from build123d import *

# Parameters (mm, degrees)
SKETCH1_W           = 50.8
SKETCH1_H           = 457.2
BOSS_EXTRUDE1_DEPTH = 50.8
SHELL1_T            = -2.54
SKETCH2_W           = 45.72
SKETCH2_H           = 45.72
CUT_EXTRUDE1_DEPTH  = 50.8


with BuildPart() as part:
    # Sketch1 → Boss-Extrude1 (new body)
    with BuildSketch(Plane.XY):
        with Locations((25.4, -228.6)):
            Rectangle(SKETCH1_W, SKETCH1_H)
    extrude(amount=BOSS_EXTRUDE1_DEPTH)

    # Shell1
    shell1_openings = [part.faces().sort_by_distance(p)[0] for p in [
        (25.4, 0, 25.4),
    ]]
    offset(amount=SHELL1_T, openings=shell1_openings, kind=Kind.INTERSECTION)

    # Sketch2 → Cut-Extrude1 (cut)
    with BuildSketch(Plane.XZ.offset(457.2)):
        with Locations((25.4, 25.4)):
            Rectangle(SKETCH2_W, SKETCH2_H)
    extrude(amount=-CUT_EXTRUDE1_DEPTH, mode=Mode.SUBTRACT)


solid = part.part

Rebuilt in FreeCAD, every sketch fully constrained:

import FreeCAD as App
import Part
import Sketcher
Q = App.Units.Quantity


def faces_at(feature, points):
    """Names of the faces that lie closest to the given points."""
    faces = feature.Shape.Faces
    near = lambda p: min(range(len(faces)), key=lambda i: faces[i].distToShape(Part.Vertex(*p))[0])
    return sorted({f"Face{near(p) + 1}" for p in points})

doc = App.newDocument("Part")
body = doc.addObject("PartDesign::Body", "Body")

sketch1 = body.newObject("Sketcher::SketchObject", "Sketch")
sketch1.AttachmentSupport = (doc.getObject("XY_Plane"), [""])
sketch1.MapMode = "FlatFace"
sketch1.addGeometry([
    Part.LineSegment(App.Vector(0, 0, 0), App.Vector(0, -457, 0)),
    Part.LineSegment(App.Vector(0, -457, 0), App.Vector(51, -457, 0)),
    Part.LineSegment(App.Vector(51, -457, 0), App.Vector(51, 0, 0)),
    Part.LineSegment(App.Vector(51, 0, 0), App.Vector(0, 0, 0)),
], False)
sketch1.addConstraint([
    Sketcher.Constraint("Coincident", 0, 2, 1, 1),
    Sketcher.Constraint("Coincident", 1, 2, 2, 1),
    Sketcher.Constraint("Coincident", 2, 2, 3, 1),
    Sketcher.Constraint("Coincident", 3, 2, 0, 1),
    Sketcher.Constraint("Vertical", 0),
    Sketcher.Constraint("Horizontal", 1),
    Sketcher.Constraint("Vertical", 2),
    Sketcher.Constraint("Horizontal", 3),
    Sketcher.Constraint("Coincident", 3, 2, -1, 1),
    Sketcher.Constraint("DistanceX", 1, 1, 1, 2, Q("2 in")),
    Sketcher.Constraint("DistanceY", 0, 2, 0, 1, Q("18 in")),
])
pad1 = body.newObject("PartDesign::Pad", "Pad")
pad1.Profile = sketch1
pad1.Length = Q("2 in")
doc.recompute()

thickness = body.newObject("PartDesign::Thickness", "Thickness")
thickness.Base = (pad1, faces_at(pad1, [(25.4, 0, 25.4)]))
thickness.Value = Q("0.1 in")
thickness.Reversed = True
thickness.Join = "Intersection"

sketch2 = body.newObject("Sketcher::SketchObject", "Sketch001")
sketch2.AttachmentSupport = (doc.getObject("XZ_Plane"), [""])
sketch2.MapMode = "FlatFace"
sketch2.AttachmentOffset = App.Placement(App.Vector(0, 0, 18 * 25.4), App.Rotation())
sketch2.addGeometry([
    Part.LineSegment(App.Vector(3, 48, 0), App.Vector(3, 3, 0)),
    Part.LineSegment(App.Vector(3, 3, 0), App.Vector(48, 3, 0)),
    Part.LineSegment(App.Vector(48, 3, 0), App.Vector(48, 48, 0)),
    Part.LineSegment(App.Vector(48, 48, 0), App.Vector(3, 48, 0)),
], False)
sketch2.addConstraint([
    Sketcher.Constraint("Coincident", 0, 2, 1, 1),
    Sketcher.Constraint("Coincident", 1, 2, 2, 1),
    Sketcher.Constraint("Coincident", 2, 2, 3, 1),
    Sketcher.Constraint("Coincident", 3, 2, 0, 1),
    Sketcher.Constraint("Vertical", 0),
    Sketcher.Constraint("Horizontal", 1),
    Sketcher.Constraint("Vertical", 2),
    Sketcher.Constraint("Horizontal", 3),
    Sketcher.Constraint("Equal", 3, 0),
    Sketcher.Constraint("DistanceX", 1, 1, 1, 2, Q("1.8 in")),
    Sketcher.Constraint("DistanceX", -1, 1, 0, 2, Q("0.1 in")),
    Sketcher.Constraint("DistanceY", -1, 1, 0, 2, Q("0.1 in")),
])
pocket1 = body.newObject("PartDesign::Pocket", "Pocket")
pocket1.Profile = sketch2
pocket1.Length = Q("2 in")

doc.recompute()
